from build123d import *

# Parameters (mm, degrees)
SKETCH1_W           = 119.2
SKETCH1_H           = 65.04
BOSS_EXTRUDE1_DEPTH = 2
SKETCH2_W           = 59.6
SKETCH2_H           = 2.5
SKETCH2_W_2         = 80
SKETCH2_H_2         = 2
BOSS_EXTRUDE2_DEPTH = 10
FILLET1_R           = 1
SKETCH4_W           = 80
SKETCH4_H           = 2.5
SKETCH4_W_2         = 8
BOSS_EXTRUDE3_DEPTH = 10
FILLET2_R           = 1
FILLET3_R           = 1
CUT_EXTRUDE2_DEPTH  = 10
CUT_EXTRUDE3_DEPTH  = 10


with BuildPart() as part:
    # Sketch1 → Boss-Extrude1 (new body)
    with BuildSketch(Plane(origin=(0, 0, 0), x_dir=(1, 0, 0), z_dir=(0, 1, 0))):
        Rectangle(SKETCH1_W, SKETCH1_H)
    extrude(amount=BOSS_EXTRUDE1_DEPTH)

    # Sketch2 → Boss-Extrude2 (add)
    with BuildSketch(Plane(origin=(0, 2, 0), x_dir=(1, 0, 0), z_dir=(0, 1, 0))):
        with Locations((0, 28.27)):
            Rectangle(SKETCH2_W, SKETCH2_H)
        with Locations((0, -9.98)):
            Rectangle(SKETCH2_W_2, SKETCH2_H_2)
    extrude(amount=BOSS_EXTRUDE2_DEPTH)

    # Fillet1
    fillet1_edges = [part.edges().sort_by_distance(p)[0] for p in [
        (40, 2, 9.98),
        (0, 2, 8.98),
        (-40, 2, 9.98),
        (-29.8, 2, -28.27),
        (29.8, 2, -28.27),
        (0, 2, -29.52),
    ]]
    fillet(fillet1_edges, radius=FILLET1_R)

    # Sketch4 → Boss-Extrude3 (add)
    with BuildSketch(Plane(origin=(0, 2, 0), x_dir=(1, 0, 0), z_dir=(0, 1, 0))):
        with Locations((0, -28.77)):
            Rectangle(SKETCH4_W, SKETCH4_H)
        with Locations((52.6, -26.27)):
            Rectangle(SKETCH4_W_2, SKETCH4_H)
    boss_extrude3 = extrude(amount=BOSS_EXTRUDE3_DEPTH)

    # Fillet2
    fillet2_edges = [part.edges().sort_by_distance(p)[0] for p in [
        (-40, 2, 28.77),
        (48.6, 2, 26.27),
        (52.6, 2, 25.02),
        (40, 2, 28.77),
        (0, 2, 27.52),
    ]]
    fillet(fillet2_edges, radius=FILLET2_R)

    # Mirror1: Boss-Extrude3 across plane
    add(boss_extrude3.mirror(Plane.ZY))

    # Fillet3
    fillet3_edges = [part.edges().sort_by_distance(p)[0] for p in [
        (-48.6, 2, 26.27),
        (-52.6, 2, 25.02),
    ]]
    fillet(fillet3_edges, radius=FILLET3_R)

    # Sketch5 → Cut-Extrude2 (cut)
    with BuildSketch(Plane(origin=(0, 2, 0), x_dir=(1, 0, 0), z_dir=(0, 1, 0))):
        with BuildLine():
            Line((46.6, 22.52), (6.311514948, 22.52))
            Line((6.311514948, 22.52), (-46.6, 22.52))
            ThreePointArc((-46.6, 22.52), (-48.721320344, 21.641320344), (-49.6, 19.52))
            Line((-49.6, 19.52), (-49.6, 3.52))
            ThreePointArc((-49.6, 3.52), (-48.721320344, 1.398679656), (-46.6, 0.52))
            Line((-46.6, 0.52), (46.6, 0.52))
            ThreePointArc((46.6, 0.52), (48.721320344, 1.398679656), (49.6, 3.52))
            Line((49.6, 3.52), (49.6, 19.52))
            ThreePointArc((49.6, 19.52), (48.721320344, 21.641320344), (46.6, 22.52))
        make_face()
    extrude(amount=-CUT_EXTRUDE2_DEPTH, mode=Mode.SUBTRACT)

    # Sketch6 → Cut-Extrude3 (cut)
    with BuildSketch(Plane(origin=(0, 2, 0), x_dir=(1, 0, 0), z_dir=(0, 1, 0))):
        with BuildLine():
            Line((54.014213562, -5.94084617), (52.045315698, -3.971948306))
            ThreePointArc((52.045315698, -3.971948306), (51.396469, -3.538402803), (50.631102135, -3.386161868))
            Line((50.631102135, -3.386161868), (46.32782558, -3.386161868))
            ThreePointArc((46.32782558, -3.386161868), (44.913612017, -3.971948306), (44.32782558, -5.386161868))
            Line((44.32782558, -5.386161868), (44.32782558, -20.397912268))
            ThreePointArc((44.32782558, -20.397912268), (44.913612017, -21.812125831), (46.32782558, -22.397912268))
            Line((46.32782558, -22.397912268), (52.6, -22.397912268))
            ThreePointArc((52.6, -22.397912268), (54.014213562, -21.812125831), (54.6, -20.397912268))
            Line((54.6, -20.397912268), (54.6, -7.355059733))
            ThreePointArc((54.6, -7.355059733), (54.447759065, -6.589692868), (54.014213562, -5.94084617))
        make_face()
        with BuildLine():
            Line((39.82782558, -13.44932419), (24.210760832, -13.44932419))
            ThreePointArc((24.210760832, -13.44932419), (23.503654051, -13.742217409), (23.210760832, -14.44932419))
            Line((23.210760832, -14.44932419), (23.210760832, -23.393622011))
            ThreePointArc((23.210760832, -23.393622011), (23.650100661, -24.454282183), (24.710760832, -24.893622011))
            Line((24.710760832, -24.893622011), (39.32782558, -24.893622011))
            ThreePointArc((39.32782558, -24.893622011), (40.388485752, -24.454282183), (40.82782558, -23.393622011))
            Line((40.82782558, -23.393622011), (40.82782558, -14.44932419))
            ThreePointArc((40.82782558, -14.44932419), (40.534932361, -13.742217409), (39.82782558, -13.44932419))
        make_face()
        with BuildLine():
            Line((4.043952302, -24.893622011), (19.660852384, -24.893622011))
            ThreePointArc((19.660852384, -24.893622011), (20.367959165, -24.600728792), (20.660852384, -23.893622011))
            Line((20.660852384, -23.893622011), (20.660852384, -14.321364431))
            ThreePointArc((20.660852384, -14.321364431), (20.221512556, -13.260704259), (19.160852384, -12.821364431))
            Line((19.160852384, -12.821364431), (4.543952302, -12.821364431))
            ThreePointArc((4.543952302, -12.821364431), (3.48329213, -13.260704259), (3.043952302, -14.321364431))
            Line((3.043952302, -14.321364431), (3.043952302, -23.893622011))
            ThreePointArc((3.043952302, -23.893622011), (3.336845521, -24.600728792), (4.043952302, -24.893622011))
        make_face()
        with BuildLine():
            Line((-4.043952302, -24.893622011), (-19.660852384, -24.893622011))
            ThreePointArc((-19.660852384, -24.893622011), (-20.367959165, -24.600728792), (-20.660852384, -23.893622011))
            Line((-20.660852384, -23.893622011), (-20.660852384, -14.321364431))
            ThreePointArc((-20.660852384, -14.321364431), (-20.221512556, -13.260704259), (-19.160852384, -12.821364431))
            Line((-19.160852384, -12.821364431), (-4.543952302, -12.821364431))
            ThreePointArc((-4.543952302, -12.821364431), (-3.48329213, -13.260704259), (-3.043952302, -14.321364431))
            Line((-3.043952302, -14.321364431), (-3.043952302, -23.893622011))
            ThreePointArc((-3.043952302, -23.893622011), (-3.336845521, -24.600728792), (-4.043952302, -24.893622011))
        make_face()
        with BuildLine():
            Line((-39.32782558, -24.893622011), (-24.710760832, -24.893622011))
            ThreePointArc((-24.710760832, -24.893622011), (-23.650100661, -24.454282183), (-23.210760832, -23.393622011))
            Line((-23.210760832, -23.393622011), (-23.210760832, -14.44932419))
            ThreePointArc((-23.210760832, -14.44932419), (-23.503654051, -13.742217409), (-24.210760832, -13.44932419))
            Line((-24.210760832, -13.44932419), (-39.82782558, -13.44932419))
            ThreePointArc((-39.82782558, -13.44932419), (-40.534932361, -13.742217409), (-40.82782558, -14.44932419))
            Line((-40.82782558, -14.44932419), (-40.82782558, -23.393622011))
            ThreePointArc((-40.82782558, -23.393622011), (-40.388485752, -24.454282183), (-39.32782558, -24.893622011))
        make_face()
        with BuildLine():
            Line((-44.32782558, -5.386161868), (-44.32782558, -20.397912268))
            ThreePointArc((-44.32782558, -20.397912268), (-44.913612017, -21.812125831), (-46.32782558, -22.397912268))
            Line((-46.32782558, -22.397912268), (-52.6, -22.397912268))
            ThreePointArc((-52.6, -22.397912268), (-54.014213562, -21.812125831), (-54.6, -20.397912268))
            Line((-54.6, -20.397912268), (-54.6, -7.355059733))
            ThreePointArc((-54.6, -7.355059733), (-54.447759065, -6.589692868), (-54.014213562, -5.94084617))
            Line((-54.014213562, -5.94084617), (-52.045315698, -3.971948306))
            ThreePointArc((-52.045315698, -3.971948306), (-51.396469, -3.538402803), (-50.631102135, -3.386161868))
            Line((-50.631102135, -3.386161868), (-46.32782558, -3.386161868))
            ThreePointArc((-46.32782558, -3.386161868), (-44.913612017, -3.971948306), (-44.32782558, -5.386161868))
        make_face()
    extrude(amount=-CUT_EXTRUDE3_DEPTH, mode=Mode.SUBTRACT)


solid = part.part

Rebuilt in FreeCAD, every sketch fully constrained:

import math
import FreeCAD as App
import Part
import Sketcher

V = App.Vector


def edges_at(feature, points):
    """Names of the edges that pass closest to the given points."""
    edges = feature.Shape.Edges
    near = lambda p: min(range(len(edges)), key=lambda i: edges[i].distToShape(Part.Vertex(*p))[0])
    return sorted({f"Edge{near(p) + 1}" for p in points})


def add_polygon(sketch, points):
    """Adds a closed chain of lines whose ends are joined by coincident constraints."""
    first, n = sketch.GeometryCount, len(points)
    for a, b in zip(points, points[1:] + points[:1]):
        sketch.addGeometry(Part.LineSegment(App.Vector(*a, 0), App.Vector(*b, 0)), False)
    for i in range(n):
        sketch.addConstraint(Sketcher.Constraint("Coincident", first + i, 2, first + (i + 1) % n, 1))

doc = App.newDocument("Part")
body = doc.addObject("PartDesign::Body", "Body")

# Sketch on XZ plane
sketch1 = body.newObject("Sketcher::SketchObject", "Sketch")
sketch1.AttachmentSupport = (doc.getObject("XZ_Plane"), [""])
sketch1.MapMode = "FlatFace"
add_polygon(sketch1, [(-60, -33), (-60, 33), (60, 33), (60, -33)])  # lines 0-3
sketch1.addConstraint([
    Sketcher.Constraint("Vertical", 0),
    Sketcher.Constraint("Horizontal", 1),
    Sketcher.Constraint("Vertical", 2),
    Sketcher.Constraint("Horizontal", 3),
    Sketcher.Constraint("Symmetric", 0, 2, 2, 2, -1, 1),
    Sketcher.Constraint("DistanceX", 1, 1, 1, 2, 119.2),
    Sketcher.Constraint("DistanceY", 0, 1, 0, 2, 65.04),
])
pad1 = body.newObject("PartDesign::Pad", "Pad")
pad1.Profile = sketch1
pad1.Length = 2
pad1.Reversed = True

# Sketch on XZ plane
sketch2 = body.newObject("Sketcher::SketchObject", "Sketch001")
sketch2.AttachmentSupport = (doc.getObject("XZ_Plane"), [""])
sketch2.MapMode = "FlatFace"
sketch2.AttachmentOffset = App.Placement(V(0, 0, -2), App.Rotation())
add_polygon(sketch2, [(-29.8, -29.5), (-29.8, -27), (29.8, -27), (29.8, -29.5)])  # lines 0-3
add_polygon(sketch2, [(-40, 9), (-40, 11), (40, 11), (40, 9)])  # lines 4-7
sketch2.addConstraint([
    Sketcher.Constraint("Vertical", 0),
    Sketcher.Constraint("Horizontal", 1),
    Sketcher.Constraint("Vertical", 2),
    Sketcher.Constraint("Horizontal", 3),
    Sketcher.Constraint("Vertical", 4),
    Sketcher.Constraint("Horizontal", 5),
    Sketcher.Constraint("Vertical", 6),
    Sketcher.Constraint("Horizontal", 7),
    Sketcher.Constraint("DistanceX", 5, 1, 5, 2, 80.0),
    Sketcher.Constraint("DistanceY", 4, 1, 4, 2, 2.0),
    Sketcher.Constraint("DistanceX", 1, 1, 1, 2, 59.6),
    Sketcher.Constraint("DistanceY", 0, 1, 0, 2, 2.5),
    Sketcher.Constraint("DistanceX", 4, 2, -1, 1, 40.0),
    Sketcher.Constraint("DistanceY", 0, 2, 4, 2, 38.0),
    Sketcher.Constraint("DistanceX", 0, 2, -1, 1, 29.8),
    Sketcher.Constraint("DistanceY", 0, 2, -1, 1, 27.02),
])
pad2 = body.newObject("PartDesign::Pad", "Pad001")
pad2.Profile = sketch2
pad2.Length = 10
pad2.Reversed = True
doc.recompute()

fillet = body.newObject("PartDesign::Fillet", "Fillet")
fillet.Base = (pad2, edges_at(pad2, [
    (40, 2, 9.98),
    (0, 2, 8.98),
    (-40, 2, 9.98),
    (-29.8, 2, -28.27),
    (29.8, 2, -28.27),
    (0, 2, -29.52),
]))
fillet.Radius = 1

# Sketch on XZ plane
sketch3 = body.newObject("Sketcher::SketchObject", "Sketch002")
sketch3.AttachmentSupport = (doc.getObject("XZ_Plane"), [""])
sketch3.MapMode = "FlatFace"
sketch3.AttachmentOffset = App.Placement(V(0, 0, -2), App.Rotation())
add_polygon(sketch3, [(-40, 27.5), (-40, 30), (40, 30), (40, 27.5)])  # lines 0-3
add_polygon(sketch3, [(48.6, 25), (48.6, 27.5), (56.6, 27.5), (56.6, 25)])  # lines 4-7
sketch3.addConstraint([
    Sketcher.Constraint("Vertical", 0),
    Sketcher.Constraint("Horizontal", 1),
    Sketcher.Constraint("Vertical", 2),
    Sketcher.Constraint("Horizontal", 3),
    Sketcher.Constraint("Vertical", 4),
    Sketcher.Constraint("Horizontal", 5),
    Sketcher.Constraint("Vertical", 6),
    Sketcher.Constraint("Horizontal", 7),
    Sketcher.Constraint("Horizontal", 3, 2, 4, 2),
    Sketcher.Constraint("Equal", 2, 4),
    Sketcher.Constraint("DistanceX", 1, 1, 1, 2, 80.0),
    Sketcher.Constraint("DistanceX", 5, 1, 5, 2, 8.0),
    Sketcher.Constraint("DistanceY", 0, 1, 0, 2, 2.5),
    Sketcher.Constraint("DistanceX", 0, 2, -1, 1, 40.0),
    Sketcher.Constraint("DistanceX", -1, 1, 4, 2, 48.6),
    Sketcher.Constraint("DistanceY", -1, 1, 0, 2, 30.02),
])
pad3 = body.newObject("PartDesign::Pad", "Pad002")
pad3.Profile = sketch3
pad3.Length = 10
pad3.Reversed = True
doc.recompute()

fillet2 = body.newObject("PartDesign::Fillet", "Fillet001")
fillet2.Base = (pad3, edges_at(pad3, [
    (-40, 2, 28.77),
    (48.6, 2, 26.27),
    (52.6, 2, 25.02),
    (40, 2, 28.77),
    (0, 2, 27.52),
]))
fillet2.Radius = 1
doc.recompute()

mirrored = body.newObject("PartDesign::Mirrored", "Mirrored")
mirrored.Originals = [pad3]
mirrored.MirrorPlane = (doc.getObject("YZ_Plane"), [""])
body.Tip = mirrored
doc.recompute()

fillet3 = body.newObject("PartDesign::Fillet", "Fillet002")
fillet3.Base = (mirrored, edges_at(mirrored, [(-48.6, 2, 26.27), (-52.6, 2, 25.02)]))
fillet3.Radius = 1

# Sketch on XZ plane
sketch4 = body.newObject("Sketcher::SketchObject", "Sketch003")
sketch4.AttachmentSupport = (doc.getObject("XZ_Plane"), [""])
sketch4.MapMode = "FlatFace"
sketch4.AttachmentOffset = App.Placement(V(0, 0, -2), App.Rotation())
sketch4.addGeometry([
    Part.LineSegment(V(46.6, -22.5, 0), V(-46.6, -22.5, 0)),  # 0
    Part.ArcOfCircle(Part.Circle(V(-46.6, -19.5, 0), V(0, 0, 1), 3), math.radians(180), math.radians(270)),  # 1
    Part.LineSegment(V(-49.6, -19.5, 0), V(-49.6, -3.5, 0)),  # 2
    Part.ArcOfCircle(Part.Circle(V(-46.6, -3.5, 0), V(0, 0, 1), 3), math.radians(90), math.radians(180)),  # 3
    Part.LineSegment(V(-46.6, -0.5, 0), V(46.6, -0.5, 0)),  # 4
    Part.ArcOfCircle(Part.Circle(V(46.6, -3.5, 0), V(0, 0, 1), 3), math.radians(0), math.radians(90)),  # 5
    Part.LineSegment(V(49.6, -3.5, 0), V(49.6, -19.5, 0)),  # 6
    Part.ArcOfCircle(Part.Circle(V(46.6, -19.5, 0), V(0, 0, 1), 3), math.radians(-90), math.radians(0)),  # 7
], False)
sketch4.addConstraint([
    Sketcher.Constraint("Tangent", 0, 2, 1, 2),
    Sketcher.Constraint("Tangent", 1, 1, 2, 1),
    Sketcher.Constraint("Tangent", 2, 2, 3, 2),
    Sketcher.Constraint("Tangent", 3, 1, 4, 1),
    Sketcher.Constraint("Tangent", 4, 2, 5, 2),
    Sketcher.Constraint("Tangent", 5, 1, 6, 1),
    Sketcher.Constraint("Tangent", 6, 2, 7, 2),
    Sketcher.Constraint("Tangent", 7, 1, 0, 1),
    Sketcher.Constraint("Horizontal", 0),
    Sketcher.Constraint("Vertical", 2),
    Sketcher.Constraint("Horizontal", 4),
    Sketcher.Constraint("Vertical", 6),
    Sketcher.Constraint("Equal", 1, 3),
    Sketcher.Constraint("Equal", 3, 5),
    Sketcher.Constraint("Equal", 5, 7),
    Sketcher.Constraint("Radius", 1, 3.0),
    Sketcher.Constraint("DistanceY", 2, 1, 2, 2, 16.0),
    Sketcher.Constraint("DistanceX", 0, 2, 0, 1, 93.2),
    Sketcher.Constraint("DistanceX", 1, 3, -1, 1, 46.6),
    Sketcher.Constraint("DistanceY", 1, 3, -1, 1, 19.52),
])
pocket1 = body.newObject("PartDesign::Pocket", "Pocket")
pocket1.Profile = sketch4
pocket1.Length = 10
pocket1.Reversed = True

# Sketch on XZ plane
sketch5 = body.newObject("Sketcher::SketchObject", "Sketch004")
sketch5.AttachmentSupport = (doc.getObject("XZ_Plane"), [""])
sketch5.MapMode = "FlatFace"
sketch5.AttachmentOffset = App.Placement(V(0, 0, -2), App.Rotation())
sketch5.addGeometry([
    Part.LineSegment(V(54, 5.9, 0), V(52, 4, 0)),  # 0
    Part.ArcOfCircle(Part.Circle(V(50.6, 5.4, 0), V(0, 0, 1), 2), math.radians(-90), math.radians(-45)),  # 1
    Part.LineSegment(V(50.6, 3.4, 0), V(46.3, 3.4, 0)),  # 2
    Part.ArcOfCircle(Part.Circle(V(46.3, 5.4, 0), V(0, 0, 1), 2), math.radians(180), math.radians(270)),  # 3
    Part.LineSegment(V(44.3, 5.4, 0), V(44.3, 20.4, 0)),  # 4
    Part.ArcOfCircle(Part.Circle(V(46.3, 20.4, 0), V(0, 0, 1), 2), math.radians(90), math.radians(180)),  # 5
    Part.LineSegment(V(46.3, 22.4, 0), V(52.6, 22.4, 0)),  # 6
    Part.ArcOfCircle(Part.Circle(V(52.6, 20.4, 0), V(0, 0, 1), 2), math.radians(0), math.radians(90)),  # 7
    Part.LineSegment(V(54.6, 20.4, 0), V(54.6, 7.4, 0)),  # 8
    Part.ArcOfCircle(Part.Circle(V(52.6, 7.4, 0), V(0, 0, 1), 2), math.radians(-45), math.radians(0)),  # 9
    Part.LineSegment(V(39.8, 13.4, 0), V(24.2, 13.4, 0)),  # 10
    Part.ArcOfCircle(Part.Circle(V(24.2, 14.4, 0), V(0, 0, 1), 1), math.radians(-180), math.radians(-90)),  # 11
    Part.LineSegment(V(23.2, 14.4, 0), V(23.2, 23.4, 0)),  # 12
    Part.ArcOfCircle(Part.Circle(V(24.7, 23.4, 0), V(0, 0, 1), 1.5), math.radians(90), math.radians(180)),  # 13
    Part.LineSegment(V(24.7, 24.9, 0), V(39.3, 24.9, 0)),  # 14
    Part.ArcOfCircle(Part.Circle(V(39.3, 23.4, 0), V(0, 0, 1), 1.5), math.radians(0), math.radians(90)),  # 15
    Part.LineSegment(V(40.8, 23.4, 0), V(40.8, 14.4, 0)),  # 16
    Part.ArcOfCircle(Part.Circle(V(39.8, 14.4, 0), V(0, 0, 1), 1), math.radians(-90), math.radians(0)),  # 17
    Part.LineSegment(V(4, 24.9, 0), V(19.7, 24.9, 0)),  # 18
    Part.ArcOfCircle(Part.Circle(V(19.7, 23.9, 0), V(0, 0, 1), 1), math.radians(0), math.radians(90)),  # 19
    Part.LineSegment(V(20.7, 23.9, 0), V(20.7, 14.3, 0)),  # 20
    Part.ArcOfCircle(Part.Circle(V(19.2, 14.3, 0), V(0, 0, 1), 1.5), math.radians(-90), math.radians(0)),  # 21
    Part.LineSegment(V(19.2, 12.8, 0), V(4.5, 12.8, 0)),  # 22
    Part.ArcOfCircle(Part.Circle(V(4.5, 14.3, 0), V(0, 0, 1), 1.5), math.radians(180), math.radians(270)),  # 23
    Part.LineSegment(V(3, 14.3, 0), V(3, 23.9, 0)),  # 24
    Part.ArcOfCircle(Part.Circle(V(4, 23.9, 0), V(0, 0, 1), 1), math.radians(90), math.radians(180)),  # 25
    Part.LineSegment(V(-19.7, 24.9, 0), V(-4, 24.9, 0)),  # 26
    Part.ArcOfCircle(Part.Circle(V(-4, 23.9, 0), V(0, 0, 1), 1), math.radians(0), math.radians(90)),  # 27
    Part.LineSegment(V(-3, 23.9, 0), V(-3, 14.3, 0)),  # 28
    Part.ArcOfCircle(Part.Circle(V(-4.5, 14.3, 0), V(0, 0, 1), 1.5), math.radians(-90), math.radians(0)),  # 29
    Part.LineSegment(V(-4.5, 12.8, 0), V(-19.2, 12.8, 0)),  # 30
    Part.ArcOfCircle(Part.Circle(V(-19.2, 14.3, 0), V(0, 0, 1), 1.5), math.radians(180), math.radians(270)),  # 31
    Part.LineSegment(V(-20.7, 14.3, 0), V(-20.7, 23.9, 0)),  # 32
    Part.ArcOfCircle(Part.Circle(V(-19.7, 23.9, 0), V(0, 0, 1), 1), math.radians(90), math.radians(180)),  # 33
    Part.LineSegment(V(-39.3, 24.9, 0), V(-24.7, 24.9, 0)),  # 34
    Part.ArcOfCircle(Part.Circle(V(-24.7, 23.4, 0), V(0, 0, 1), 1.5), math.radians(0), math.radians(90)),  # 35
    Part.LineSegment(V(-23.2, 23.4, 0), V(-23.2, 14.4, 0)),  # 36
    Part.ArcOfCircle(Part.Circle(V(-24.2, 14.4, 0), V(0, 0, 1), 1), math.radians(-90), math.radians(0)),  # 37
    Part.LineSegment(V(-24.2, 13.4, 0), V(-39.8, 13.4, 0)),  # 38
    Part.ArcOfCircle(Part.Circle(V(-39.8, 14.4, 0), V(0, 0, 1), 1), math.radians(-180), math.radians(-90)),  # 39
    Part.LineSegment(V(-40.8, 14.4, 0), V(-40.8, 23.4, 0)),  # 40
    Part.ArcOfCircle(Part.Circle(V(-39.3, 23.4, 0), V(0, 0, 1), 1.5), math.radians(90), math.radians(180)),  # 41
    Part.LineSegment(V(-44.3, 20.4, 0), V(-44.3, 5.4, 0)),  # 42
    Part.ArcOfCircle(Part.Circle(V(-46.3, 5.4, 0), V(0, 0, 1), 2), math.radians(-90), math.radians(0)),  # 43
    Part.LineSegment(V(-46.3, 3.4, 0), V(-50.6, 3.4, 0)),  # 44
    Part.ArcOfCircle(Part.Circle(V(-50.6, 5.4, 0), V(0, 0, 1), 2), math.radians(-135), math.radians(-90)),  # 45
    Part.LineSegment(V(-52, 4, 0), V(-54, 5.9, 0)),  # 46
    Part.ArcOfCircle(Part.Circle(V(-52.6, 7.4, 0), V(0, 0, 1), 2), math.radians(180), math.radians(225)),  # 47
    Part.LineSegment(V(-54.6, 7.4, 0), V(-54.6, 20.4, 0)),  # 48
    Part.ArcOfCircle(Part.Circle(V(-52.6, 20.4, 0), V(0, 0, 1), 2), math.radians(90), math.radians(180)),  # 49
    Part.LineSegment(V(-52.6, 22.4, 0), V(-46.3, 22.4, 0)),  # 50
    Part.ArcOfCircle(Part.Circle(V(-46.3, 20.4, 0), V(0, 0, 1), 2), math.radians(0), math.radians(90)),  # 51
], False)
sketch5.addConstraint([
    Sketcher.Constraint("Tangent", 0, 2, 1, 2),
    Sketcher.Constraint("Tangent", 1, 1, 2, 1),
    Sketcher.Constraint("Tangent", 2, 2, 3, 2),
    Sketcher.Constraint("Tangent", 3, 1, 4, 1),
    Sketcher.Constraint("Tangent", 4, 2, 5, 2),
    Sketcher.Constraint("Tangent", 5, 1, 6, 1),
    Sketcher.Constraint("Tangent", 6, 2, 7, 2),
    Sketcher.Constraint("Tangent", 7, 1, 8, 1),
    Sketcher.Constraint("Tangent", 8, 2, 9, 2),
    Sketcher.Constraint("Tangent", 9, 1, 0, 1),
    Sketcher.Constraint("Tangent", 10, 2, 11, 2),
    Sketcher.Constraint("Tangent", 11, 1, 12, 1),
    Sketcher.Constraint("Tangent", 12, 2, 13, 2),
    Sketcher.Constraint("Tangent", 13, 1, 14, 1),
    Sketcher.Constraint("Tangent", 14, 2, 15, 2),
    Sketcher.Constraint("Tangent", 15, 1, 16, 1),
    Sketcher.Constraint("Tangent", 16, 2, 17, 2),
    Sketcher.Constraint("Tangent", 17, 1, 10, 1),
    Sketcher.Constraint("Tangent", 18, 2, 19, 2),
    Sketcher.Constraint("Tangent", 19, 1, 20, 1),
    Sketcher.Constraint("Tangent", 20, 2, 21, 2),
    Sketcher.Constraint("Tangent", 21, 1, 22, 1),
    Sketcher.Constraint("Tangent", 22, 2, 23, 2),
    Sketcher.Constraint("Tangent", 23, 1, 24, 1),
    Sketcher.Constraint("Tangent", 24, 2, 25, 2),
    Sketcher.Constraint("Tangent", 25, 1, 18, 1),
    Sketcher.Constraint("Tangent", 26, 2, 27, 2),
    Sketcher.Constraint("Tangent", 27, 1, 28, 1),
    Sketcher.Constraint("Tangent", 28, 2, 29, 2),
    Sketcher.Constraint("Tangent", 29, 1, 30, 1),
    Sketcher.Constraint("Tangent", 30, 2, 31, 2),
    Sketcher.Constraint("Tangent", 31, 1, 32, 1),
    Sketcher.Constraint("Tangent", 32, 2, 33, 2),
    Sketcher.Constraint("Tangent", 33, 1, 26, 1),
    Sketcher.Constraint("Tangent", 34, 2, 35, 2),
    Sketcher.Constraint("Tangent", 35, 1, 36, 1),
    Sketcher.Constraint("Tangent", 36, 2, 37, 2),
    Sketcher.Constraint("Tangent", 37, 1, 38, 1),
    Sketcher.Constraint("Tangent", 38, 2, 39, 2),
    Sketcher.Constraint("Tangent", 39, 1, 40, 1),
    Sketcher.Constraint("Tangent", 40, 2, 41, 2),
    Sketcher.Constraint("Tangent", 41, 1, 34, 1),
    Sketcher.Constraint("Tangent", 42, 2, 43, 2),
    Sketcher.Constraint("Tangent", 43, 1, 44, 1),
    Sketcher.Constraint("Tangent", 44, 2, 45, 2),
    Sketcher.Constraint("Tangent", 45, 1, 46, 1),
    Sketcher.Constraint("Tangent", 46, 2, 47, 2),
    Sketcher.Constraint("Tangent", 47, 1, 48, 1),
    Sketcher.Constraint("Tangent", 48, 2, 49, 2),
    Sketcher.Constraint("Tangent", 49, 1, 50, 1),
    Sketcher.Constraint("Tangent", 50, 2, 51, 2),
    Sketcher.Constraint("Tangent", 51, 1, 42, 1),
    Sketcher.Constraint("Horizontal", 2),
    Sketcher.Constraint("Vertical", 4),
    Sketcher.Constraint("Horizontal", 6),
    Sketcher.Constraint("Vertical", 8),
    Sketcher.Constraint("Horizontal", 10),
    Sketcher.Constraint("Vertical", 12),
    Sketcher.Constraint("Horizontal", 14),
    Sketcher.Constraint("Vertical", 16),
    Sketcher.Constraint("Horizontal", 18),
    Sketcher.Constraint("Vertical", 20),
    Sketcher.Constraint("Horizontal", 22),
    Sketcher.Constraint("Vertical", 24),
    Sketcher.Constraint("Horizontal", 26),
    Sketcher.Constraint("Vertical", 28),
    Sketcher.Constraint("Horizontal", 30),
    Sketcher.Constraint("Vertical", 32),
    Sketcher.Constraint("Horizontal", 34),
    Sketcher.Constraint("Vertical", 36),
    Sketcher.Constraint("Horizontal", 38),
    Sketcher.Constraint("Vertical", 40),
    Sketcher.Constraint("Vertical", 42),
    Sketcher.Constraint("Horizontal", 44),
    Sketcher.Constraint("Vertical", 48),
    Sketcher.Constraint("Horizontal", 50),
    Sketcher.Constraint("Equal", 1, 3),
    Sketcher.Constraint("Equal", 3, 5),
    Sketcher.Constraint("Equal", 5, 7),
    Sketcher.Constraint("Equal", 7, 9),
    Sketcher.Constraint("Equal", 13, 15),
    Sketcher.Constraint("Equal", 11, 17),
    Sketcher.Constraint("Equal", 17, 19),
    Sketcher.Constraint("Equal", 15, 21),
    Sketcher.Constraint("Equal", 21, 23),
    Sketcher.Constraint("Equal", 19, 25),
    Sketcher.Constraint("Equal", 25, 27),
    Sketcher.Constraint("Equal", 23, 29),
    Sketcher.Constraint("Equal", 29, 31),
    Sketcher.Constraint("Equal", 27, 33),
    Sketcher.Constraint("Equal", 31, 35),
    Sketcher.Constraint("Equal", 33, 37),
    Sketcher.Constraint("Equal", 37, 39),
    Sketcher.Constraint("Equal", 35, 41),
    Sketcher.Constraint("Equal", 9, 43),
    Sketcher.Constraint("Equal", 43, 45),
    Sketcher.Constraint("Equal", 45, 47),
    Sketcher.Constraint("Equal", 47, 49),
    Sketcher.Constraint("Equal", 49, 51),
    Sketcher.Constraint("Symmetric", 25, 3, 27, 3, -2),
    Sketcher.Constraint("Symmetric", 21, 3, 31, 3, -2),
    Sketcher.Constraint("Symmetric", 13, 3, 35, 3, -2),
    Sketcher.Constraint("Symmetric", 17, 3, 39, 3, -2),
    Sketcher.Constraint("Symmetric", 3, 3, 43, 3, -2),
    Sketcher.Constraint("Symmetric", 9, 3, 47, 3, -2),
    Sketcher.Constraint("Perpendicular", 0, 46),
    Sketcher.Constraint("Horizontal", 7, 3, 49, 3),
    Sketcher.Constraint("Horizontal", 14, 2, 18, 2),
    Sketcher.Constraint("Horizontal", 0, 2, 45, 1),
    Sketcher.Constraint("Radius", 1, 2.0),
    Sketcher.Constraint("Radius", 11, 1.0),
    Sketcher.Constraint("Radius", 13, 1.5),
    Sketcher.Constraint("DistanceX", -1, 1, 7, 3, 52.6),
    Sketcher.Constraint("DistanceX", 18, 1, 18, 2, 15.6169),
    Sketcher.Constraint("DistanceY", 4, 1, 4, 2, 15.01175),
    Sketcher.Constraint("DistanceX", 2, 2, 2, 1, 4.303277),
    Sketcher.Constraint("DistanceX", 6, 1, 6, 2, 6.272174),
    Sketcher.Constraint("DistanceX", 10, 2, 10, 1, 15.617065),
    Sketcher.Constraint("DistanceY", 12, 1, 12, 2, 8.944298),
    Sketcher.Constraint("DistanceY", 20, 2, 20, 1, 9.572258),
    Sketcher.Constraint("DistanceY", -1, 1, 1, 3, 5.386162),
    Sketcher.Constraint("DistanceX", -1, 1, 11, 3, 24.210761),
    Sketcher.Constraint("DistanceY", -1, 1, 11, 3, 14.449324),
    Sketcher.Constraint("DistanceX", -1, 1, 19, 3, 19.660852),
])
pocket2 = body.newObject("PartDesign::Pocket", "Pocket001")
pocket2.Profile = sketch5
pocket2.Length = 10
pocket2.Reversed = True

doc.recompute()
